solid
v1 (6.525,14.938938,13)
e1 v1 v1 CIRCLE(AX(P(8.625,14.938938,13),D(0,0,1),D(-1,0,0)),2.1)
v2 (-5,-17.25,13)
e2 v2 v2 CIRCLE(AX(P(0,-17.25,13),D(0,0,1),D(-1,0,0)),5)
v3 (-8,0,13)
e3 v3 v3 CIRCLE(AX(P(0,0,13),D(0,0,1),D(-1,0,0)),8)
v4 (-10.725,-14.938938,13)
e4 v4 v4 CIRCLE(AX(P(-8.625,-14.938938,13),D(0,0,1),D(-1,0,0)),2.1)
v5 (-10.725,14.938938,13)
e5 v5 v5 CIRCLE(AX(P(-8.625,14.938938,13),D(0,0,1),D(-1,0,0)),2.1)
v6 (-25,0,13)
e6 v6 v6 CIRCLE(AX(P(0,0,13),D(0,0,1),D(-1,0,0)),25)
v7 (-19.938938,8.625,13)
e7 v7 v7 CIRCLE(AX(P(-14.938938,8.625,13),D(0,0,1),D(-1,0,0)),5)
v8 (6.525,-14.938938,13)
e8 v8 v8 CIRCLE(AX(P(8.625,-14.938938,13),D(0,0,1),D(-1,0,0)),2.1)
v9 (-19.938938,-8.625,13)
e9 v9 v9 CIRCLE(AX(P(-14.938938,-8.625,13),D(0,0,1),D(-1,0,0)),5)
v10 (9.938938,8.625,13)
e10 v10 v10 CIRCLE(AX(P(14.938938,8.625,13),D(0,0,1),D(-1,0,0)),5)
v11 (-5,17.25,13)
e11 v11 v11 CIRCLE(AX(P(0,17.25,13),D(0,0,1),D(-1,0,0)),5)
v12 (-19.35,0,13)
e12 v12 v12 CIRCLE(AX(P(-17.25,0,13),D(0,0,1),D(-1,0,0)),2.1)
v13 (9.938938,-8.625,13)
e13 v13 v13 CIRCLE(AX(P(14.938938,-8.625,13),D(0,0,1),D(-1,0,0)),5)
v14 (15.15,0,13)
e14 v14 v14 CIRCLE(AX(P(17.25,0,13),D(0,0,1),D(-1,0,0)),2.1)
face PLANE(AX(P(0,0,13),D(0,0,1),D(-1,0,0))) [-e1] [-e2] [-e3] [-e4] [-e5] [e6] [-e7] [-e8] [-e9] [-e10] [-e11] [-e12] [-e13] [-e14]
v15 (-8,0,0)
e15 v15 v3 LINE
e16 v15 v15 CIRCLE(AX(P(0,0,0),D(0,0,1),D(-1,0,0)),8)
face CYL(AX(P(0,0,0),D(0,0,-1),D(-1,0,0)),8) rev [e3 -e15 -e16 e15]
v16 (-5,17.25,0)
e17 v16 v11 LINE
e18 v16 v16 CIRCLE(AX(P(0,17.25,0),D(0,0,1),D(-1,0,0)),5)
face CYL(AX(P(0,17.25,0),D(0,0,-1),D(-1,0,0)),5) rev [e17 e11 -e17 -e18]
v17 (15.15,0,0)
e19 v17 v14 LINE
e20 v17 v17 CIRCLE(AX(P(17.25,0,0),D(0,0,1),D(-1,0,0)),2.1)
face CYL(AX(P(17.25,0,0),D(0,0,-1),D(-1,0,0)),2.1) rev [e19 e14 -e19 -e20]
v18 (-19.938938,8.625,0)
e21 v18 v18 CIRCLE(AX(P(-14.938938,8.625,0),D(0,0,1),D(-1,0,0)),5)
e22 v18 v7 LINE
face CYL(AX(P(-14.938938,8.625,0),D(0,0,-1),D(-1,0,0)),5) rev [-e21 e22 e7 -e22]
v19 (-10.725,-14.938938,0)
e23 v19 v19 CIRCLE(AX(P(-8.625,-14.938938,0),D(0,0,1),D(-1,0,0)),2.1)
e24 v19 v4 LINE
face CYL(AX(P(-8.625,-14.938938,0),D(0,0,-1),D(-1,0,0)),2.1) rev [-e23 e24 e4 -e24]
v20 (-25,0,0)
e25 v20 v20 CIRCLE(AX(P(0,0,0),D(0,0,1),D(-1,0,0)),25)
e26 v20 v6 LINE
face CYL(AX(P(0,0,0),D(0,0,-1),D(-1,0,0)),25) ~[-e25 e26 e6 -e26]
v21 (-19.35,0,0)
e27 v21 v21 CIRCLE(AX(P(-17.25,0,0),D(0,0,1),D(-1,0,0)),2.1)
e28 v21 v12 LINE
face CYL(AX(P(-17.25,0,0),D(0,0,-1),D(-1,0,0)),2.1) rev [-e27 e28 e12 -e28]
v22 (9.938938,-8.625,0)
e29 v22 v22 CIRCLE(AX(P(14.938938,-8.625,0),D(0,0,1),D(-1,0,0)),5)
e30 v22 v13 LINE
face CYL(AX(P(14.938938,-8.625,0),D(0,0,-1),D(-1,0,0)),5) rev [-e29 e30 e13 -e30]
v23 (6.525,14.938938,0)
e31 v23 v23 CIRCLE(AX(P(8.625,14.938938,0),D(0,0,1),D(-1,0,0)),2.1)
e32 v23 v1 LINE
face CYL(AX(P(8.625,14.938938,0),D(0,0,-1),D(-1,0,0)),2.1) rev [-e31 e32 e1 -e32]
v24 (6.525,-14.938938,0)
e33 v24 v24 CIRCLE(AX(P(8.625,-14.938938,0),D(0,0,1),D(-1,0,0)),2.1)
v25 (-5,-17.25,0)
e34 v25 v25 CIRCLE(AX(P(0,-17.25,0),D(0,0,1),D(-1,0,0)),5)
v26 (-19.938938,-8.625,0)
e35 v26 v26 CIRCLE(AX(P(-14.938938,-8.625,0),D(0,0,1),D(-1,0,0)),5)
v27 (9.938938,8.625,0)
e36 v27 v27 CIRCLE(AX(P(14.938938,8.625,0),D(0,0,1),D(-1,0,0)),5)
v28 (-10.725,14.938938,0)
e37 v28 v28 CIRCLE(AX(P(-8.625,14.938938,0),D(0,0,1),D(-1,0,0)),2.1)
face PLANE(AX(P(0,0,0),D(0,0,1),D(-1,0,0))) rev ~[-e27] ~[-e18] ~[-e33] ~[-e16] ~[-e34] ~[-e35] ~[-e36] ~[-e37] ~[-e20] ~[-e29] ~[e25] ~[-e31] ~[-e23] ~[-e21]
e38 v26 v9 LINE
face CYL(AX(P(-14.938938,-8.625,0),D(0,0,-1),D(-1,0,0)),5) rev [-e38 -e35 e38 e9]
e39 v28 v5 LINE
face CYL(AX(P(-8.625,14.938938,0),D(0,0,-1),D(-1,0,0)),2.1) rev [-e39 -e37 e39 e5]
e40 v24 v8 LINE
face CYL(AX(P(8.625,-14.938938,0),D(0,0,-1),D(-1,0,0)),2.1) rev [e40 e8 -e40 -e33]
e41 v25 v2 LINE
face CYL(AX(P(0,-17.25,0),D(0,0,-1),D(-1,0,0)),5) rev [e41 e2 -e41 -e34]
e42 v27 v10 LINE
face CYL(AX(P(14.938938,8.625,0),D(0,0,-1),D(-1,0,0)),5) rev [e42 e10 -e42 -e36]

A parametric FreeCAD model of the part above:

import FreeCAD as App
import Part
import Sketcher
from FreeCAD import Vector

doc = App.newDocument("Part")
params = doc.addObject("Spreadsheet::Sheet", "Params")
for row, (alias, value) in enumerate([
    ("sketch1_diameter", "50 mm"),
    ("sketch1_diameter2", "10 mm"),
    ("sketch1_diameter3", "16 mm"),
    ("sketch1_diameter4", "4.2 mm"),
    ("pad1_length", "13 mm"),
], start=1):
    params.set(f"A{row}", alias)
    params.set(f"B{row}", "=" + value)
    params.setAlias(f"B{row}", alias)

body = doc.addObject("PartDesign::Body", "Body")

# Sketch on XY plane
sketch1 = body.newObject("Sketcher::SketchObject", "Sketch")
sketch1.AttachmentSupport = (doc.getObject("XY_Plane"), [""])
sketch1.MapMode = "FlatFace"
sketch1.addGeometry(Part.Circle(Vector(0, 0, 0), Vector(0, 0, 1), 25), False)
sketch1.addGeometry(Part.Circle(Vector(8.6, 14.9, 0), Vector(0, 0, 1), 2.1), False)
sketch1.addGeometry(Part.Circle(Vector(14.9, 8.6, 0), Vector(0, 0, 1), 5), False)
sketch1.addGeometry(Part.Circle(Vector(17.2, 0, 0), Vector(0, 0, 1), 2.1), False)
sketch1.addGeometry(Part.Circle(Vector(0, 17.2, 0), Vector(0, 0, 1), 5), False)
sketch1.addGeometry(Part.Circle(Vector(-8.6, 14.9, 0), Vector(0, 0, 1), 2.1), False)
sketch1.addGeometry(Part.Circle(Vector(-14.9, 8.6, 0), Vector(0, 0, 1), 5), False)
sketch1.addGeometry(Part.Circle(Vector(14.9, -8.6, 0), Vector(0, 0, 1), 5), False)
sketch1.addGeometry(Part.Circle(Vector(8.6, -14.9, 0), Vector(0, 0, 1), 2.1), False)
sketch1.addGeometry(Part.Circle(Vector(0, 0, 0), Vector(0, 0, 1), 8), False)
sketch1.addGeometry(Part.Circle(Vector(-17.2, 0, 0), Vector(0, 0, 1), 2.1), False)
sketch1.addGeometry(Part.Circle(Vector(-14.9, -8.6, 0), Vector(0, 0, 1), 5), False)
sketch1.addGeometry(Part.Circle(Vector(-8.6, -14.9, 0), Vector(0, 0, 1), 2.1), False)
sketch1.addGeometry(Part.Circle(Vector(0, -17.2, 0), Vector(0, 0, 1), 5), False)
sketch1.addConstraint(Sketcher.Constraint("Coincident", 0, 3, -1, 1))
sketch1.addConstraint(Sketcher.Constraint("Coincident", 9, 3, -1, 1))
sketch1.addConstraint(Sketcher.Constraint("Equal", 1, 3))
sketch1.addConstraint(Sketcher.Constraint("Equal", 2, 4))
sketch1.addConstraint(Sketcher.Constraint("Equal", 3, 5))
sketch1.addConstraint(Sketcher.Constraint("Equal", 4, 6))
sketch1.addConstraint(Sketcher.Constraint("Equal", 6, 7))
sketch1.addConstraint(Sketcher.Constraint("Equal", 5, 8))
sketch1.addConstraint(Sketcher.Constraint("Equal", 8, 10))
sketch1.addConstraint(Sketcher.Constraint("Equal", 7, 11))
sketch1.addConstraint(Sketcher.Constraint("Equal", 10, 12))
sketch1.addConstraint(Sketcher.Constraint("Equal", 11, 13))
sketch1.addConstraint(Sketcher.Constraint("Symmetric", 6, 3, 7, 3, -1, 1))
sketch1.addConstraint(Sketcher.Constraint("Symmetric", 5, 3, 8, 3, -1, 1))
sketch1.addConstraint(Sketcher.Constraint("Symmetric", 3, 3, 10, 3, -1, 1))
sketch1.addConstraint(Sketcher.Constraint("Symmetric", 2, 3, 11, 3, -1, 1))
sketch1.addConstraint(Sketcher.Constraint("Symmetric", 1, 3, 12, 3, -1, 1))
sketch1.addConstraint(Sketcher.Constraint("Symmetric", 4, 3, 13, 3, -1, 1))
sketch1.addConstraint(Sketcher.Constraint("Symmetric", 1, 3, 5, 3, -2))
sketch1.addConstraint(Sketcher.Constraint("Symmetric", 2, 3, 6, 3, -2))
sketch1.addConstraint(Sketcher.Constraint("PointOnObject", 3, 3, -1))
sketch1.addConstraint(Sketcher.Constraint("PointOnObject", 4, 3, -2))
sketch1.addConstraint(Sketcher.Constraint("Diameter", 0, 50.0))
sketch1.addConstraint(Sketcher.Constraint("Diameter", 2, 10.0))
sketch1.addConstraint(Sketcher.Constraint("Diameter", 9, 16.0))
sketch1.addConstraint(Sketcher.Constraint("Diameter", 1, 4.2))
sketch1.addConstraint(Sketcher.Constraint("DistanceX", -1, 1, 3, 3, 17.25))
sketch1.addConstraint(Sketcher.Constraint("DistanceY", -1, 1, 4, 3, 17.25))
sketch1.addConstraint(Sketcher.Constraint("DistanceX", 5, 3, 1, 3, 17.25))
sketch1.addConstraint(Sketcher.Constraint("DistanceY", 7, 3, 2, 3, 17.25))
sketch1.addConstraint(Sketcher.Constraint("DistanceY", -1, 1, 1, 3, 14.938938))
sketch1.addConstraint(Sketcher.Constraint("DistanceX", -1, 1, 2, 3, 14.938938))
sketch1.setExpression("Constraints[22]", "Params.sketch1_diameter")
sketch1.setExpression("Constraints[23]", "Params.sketch1_diameter2")
sketch1.setExpression("Constraints[24]", "Params.sketch1_diameter3")
sketch1.setExpression("Constraints[25]", "Params.sketch1_diameter4")
pad1 = body.newObject("PartDesign::Pad", "Pad")
pad1.Profile = sketch1
pad1.setExpression("Length", "Params.pad1_length")

doc.recompute()
